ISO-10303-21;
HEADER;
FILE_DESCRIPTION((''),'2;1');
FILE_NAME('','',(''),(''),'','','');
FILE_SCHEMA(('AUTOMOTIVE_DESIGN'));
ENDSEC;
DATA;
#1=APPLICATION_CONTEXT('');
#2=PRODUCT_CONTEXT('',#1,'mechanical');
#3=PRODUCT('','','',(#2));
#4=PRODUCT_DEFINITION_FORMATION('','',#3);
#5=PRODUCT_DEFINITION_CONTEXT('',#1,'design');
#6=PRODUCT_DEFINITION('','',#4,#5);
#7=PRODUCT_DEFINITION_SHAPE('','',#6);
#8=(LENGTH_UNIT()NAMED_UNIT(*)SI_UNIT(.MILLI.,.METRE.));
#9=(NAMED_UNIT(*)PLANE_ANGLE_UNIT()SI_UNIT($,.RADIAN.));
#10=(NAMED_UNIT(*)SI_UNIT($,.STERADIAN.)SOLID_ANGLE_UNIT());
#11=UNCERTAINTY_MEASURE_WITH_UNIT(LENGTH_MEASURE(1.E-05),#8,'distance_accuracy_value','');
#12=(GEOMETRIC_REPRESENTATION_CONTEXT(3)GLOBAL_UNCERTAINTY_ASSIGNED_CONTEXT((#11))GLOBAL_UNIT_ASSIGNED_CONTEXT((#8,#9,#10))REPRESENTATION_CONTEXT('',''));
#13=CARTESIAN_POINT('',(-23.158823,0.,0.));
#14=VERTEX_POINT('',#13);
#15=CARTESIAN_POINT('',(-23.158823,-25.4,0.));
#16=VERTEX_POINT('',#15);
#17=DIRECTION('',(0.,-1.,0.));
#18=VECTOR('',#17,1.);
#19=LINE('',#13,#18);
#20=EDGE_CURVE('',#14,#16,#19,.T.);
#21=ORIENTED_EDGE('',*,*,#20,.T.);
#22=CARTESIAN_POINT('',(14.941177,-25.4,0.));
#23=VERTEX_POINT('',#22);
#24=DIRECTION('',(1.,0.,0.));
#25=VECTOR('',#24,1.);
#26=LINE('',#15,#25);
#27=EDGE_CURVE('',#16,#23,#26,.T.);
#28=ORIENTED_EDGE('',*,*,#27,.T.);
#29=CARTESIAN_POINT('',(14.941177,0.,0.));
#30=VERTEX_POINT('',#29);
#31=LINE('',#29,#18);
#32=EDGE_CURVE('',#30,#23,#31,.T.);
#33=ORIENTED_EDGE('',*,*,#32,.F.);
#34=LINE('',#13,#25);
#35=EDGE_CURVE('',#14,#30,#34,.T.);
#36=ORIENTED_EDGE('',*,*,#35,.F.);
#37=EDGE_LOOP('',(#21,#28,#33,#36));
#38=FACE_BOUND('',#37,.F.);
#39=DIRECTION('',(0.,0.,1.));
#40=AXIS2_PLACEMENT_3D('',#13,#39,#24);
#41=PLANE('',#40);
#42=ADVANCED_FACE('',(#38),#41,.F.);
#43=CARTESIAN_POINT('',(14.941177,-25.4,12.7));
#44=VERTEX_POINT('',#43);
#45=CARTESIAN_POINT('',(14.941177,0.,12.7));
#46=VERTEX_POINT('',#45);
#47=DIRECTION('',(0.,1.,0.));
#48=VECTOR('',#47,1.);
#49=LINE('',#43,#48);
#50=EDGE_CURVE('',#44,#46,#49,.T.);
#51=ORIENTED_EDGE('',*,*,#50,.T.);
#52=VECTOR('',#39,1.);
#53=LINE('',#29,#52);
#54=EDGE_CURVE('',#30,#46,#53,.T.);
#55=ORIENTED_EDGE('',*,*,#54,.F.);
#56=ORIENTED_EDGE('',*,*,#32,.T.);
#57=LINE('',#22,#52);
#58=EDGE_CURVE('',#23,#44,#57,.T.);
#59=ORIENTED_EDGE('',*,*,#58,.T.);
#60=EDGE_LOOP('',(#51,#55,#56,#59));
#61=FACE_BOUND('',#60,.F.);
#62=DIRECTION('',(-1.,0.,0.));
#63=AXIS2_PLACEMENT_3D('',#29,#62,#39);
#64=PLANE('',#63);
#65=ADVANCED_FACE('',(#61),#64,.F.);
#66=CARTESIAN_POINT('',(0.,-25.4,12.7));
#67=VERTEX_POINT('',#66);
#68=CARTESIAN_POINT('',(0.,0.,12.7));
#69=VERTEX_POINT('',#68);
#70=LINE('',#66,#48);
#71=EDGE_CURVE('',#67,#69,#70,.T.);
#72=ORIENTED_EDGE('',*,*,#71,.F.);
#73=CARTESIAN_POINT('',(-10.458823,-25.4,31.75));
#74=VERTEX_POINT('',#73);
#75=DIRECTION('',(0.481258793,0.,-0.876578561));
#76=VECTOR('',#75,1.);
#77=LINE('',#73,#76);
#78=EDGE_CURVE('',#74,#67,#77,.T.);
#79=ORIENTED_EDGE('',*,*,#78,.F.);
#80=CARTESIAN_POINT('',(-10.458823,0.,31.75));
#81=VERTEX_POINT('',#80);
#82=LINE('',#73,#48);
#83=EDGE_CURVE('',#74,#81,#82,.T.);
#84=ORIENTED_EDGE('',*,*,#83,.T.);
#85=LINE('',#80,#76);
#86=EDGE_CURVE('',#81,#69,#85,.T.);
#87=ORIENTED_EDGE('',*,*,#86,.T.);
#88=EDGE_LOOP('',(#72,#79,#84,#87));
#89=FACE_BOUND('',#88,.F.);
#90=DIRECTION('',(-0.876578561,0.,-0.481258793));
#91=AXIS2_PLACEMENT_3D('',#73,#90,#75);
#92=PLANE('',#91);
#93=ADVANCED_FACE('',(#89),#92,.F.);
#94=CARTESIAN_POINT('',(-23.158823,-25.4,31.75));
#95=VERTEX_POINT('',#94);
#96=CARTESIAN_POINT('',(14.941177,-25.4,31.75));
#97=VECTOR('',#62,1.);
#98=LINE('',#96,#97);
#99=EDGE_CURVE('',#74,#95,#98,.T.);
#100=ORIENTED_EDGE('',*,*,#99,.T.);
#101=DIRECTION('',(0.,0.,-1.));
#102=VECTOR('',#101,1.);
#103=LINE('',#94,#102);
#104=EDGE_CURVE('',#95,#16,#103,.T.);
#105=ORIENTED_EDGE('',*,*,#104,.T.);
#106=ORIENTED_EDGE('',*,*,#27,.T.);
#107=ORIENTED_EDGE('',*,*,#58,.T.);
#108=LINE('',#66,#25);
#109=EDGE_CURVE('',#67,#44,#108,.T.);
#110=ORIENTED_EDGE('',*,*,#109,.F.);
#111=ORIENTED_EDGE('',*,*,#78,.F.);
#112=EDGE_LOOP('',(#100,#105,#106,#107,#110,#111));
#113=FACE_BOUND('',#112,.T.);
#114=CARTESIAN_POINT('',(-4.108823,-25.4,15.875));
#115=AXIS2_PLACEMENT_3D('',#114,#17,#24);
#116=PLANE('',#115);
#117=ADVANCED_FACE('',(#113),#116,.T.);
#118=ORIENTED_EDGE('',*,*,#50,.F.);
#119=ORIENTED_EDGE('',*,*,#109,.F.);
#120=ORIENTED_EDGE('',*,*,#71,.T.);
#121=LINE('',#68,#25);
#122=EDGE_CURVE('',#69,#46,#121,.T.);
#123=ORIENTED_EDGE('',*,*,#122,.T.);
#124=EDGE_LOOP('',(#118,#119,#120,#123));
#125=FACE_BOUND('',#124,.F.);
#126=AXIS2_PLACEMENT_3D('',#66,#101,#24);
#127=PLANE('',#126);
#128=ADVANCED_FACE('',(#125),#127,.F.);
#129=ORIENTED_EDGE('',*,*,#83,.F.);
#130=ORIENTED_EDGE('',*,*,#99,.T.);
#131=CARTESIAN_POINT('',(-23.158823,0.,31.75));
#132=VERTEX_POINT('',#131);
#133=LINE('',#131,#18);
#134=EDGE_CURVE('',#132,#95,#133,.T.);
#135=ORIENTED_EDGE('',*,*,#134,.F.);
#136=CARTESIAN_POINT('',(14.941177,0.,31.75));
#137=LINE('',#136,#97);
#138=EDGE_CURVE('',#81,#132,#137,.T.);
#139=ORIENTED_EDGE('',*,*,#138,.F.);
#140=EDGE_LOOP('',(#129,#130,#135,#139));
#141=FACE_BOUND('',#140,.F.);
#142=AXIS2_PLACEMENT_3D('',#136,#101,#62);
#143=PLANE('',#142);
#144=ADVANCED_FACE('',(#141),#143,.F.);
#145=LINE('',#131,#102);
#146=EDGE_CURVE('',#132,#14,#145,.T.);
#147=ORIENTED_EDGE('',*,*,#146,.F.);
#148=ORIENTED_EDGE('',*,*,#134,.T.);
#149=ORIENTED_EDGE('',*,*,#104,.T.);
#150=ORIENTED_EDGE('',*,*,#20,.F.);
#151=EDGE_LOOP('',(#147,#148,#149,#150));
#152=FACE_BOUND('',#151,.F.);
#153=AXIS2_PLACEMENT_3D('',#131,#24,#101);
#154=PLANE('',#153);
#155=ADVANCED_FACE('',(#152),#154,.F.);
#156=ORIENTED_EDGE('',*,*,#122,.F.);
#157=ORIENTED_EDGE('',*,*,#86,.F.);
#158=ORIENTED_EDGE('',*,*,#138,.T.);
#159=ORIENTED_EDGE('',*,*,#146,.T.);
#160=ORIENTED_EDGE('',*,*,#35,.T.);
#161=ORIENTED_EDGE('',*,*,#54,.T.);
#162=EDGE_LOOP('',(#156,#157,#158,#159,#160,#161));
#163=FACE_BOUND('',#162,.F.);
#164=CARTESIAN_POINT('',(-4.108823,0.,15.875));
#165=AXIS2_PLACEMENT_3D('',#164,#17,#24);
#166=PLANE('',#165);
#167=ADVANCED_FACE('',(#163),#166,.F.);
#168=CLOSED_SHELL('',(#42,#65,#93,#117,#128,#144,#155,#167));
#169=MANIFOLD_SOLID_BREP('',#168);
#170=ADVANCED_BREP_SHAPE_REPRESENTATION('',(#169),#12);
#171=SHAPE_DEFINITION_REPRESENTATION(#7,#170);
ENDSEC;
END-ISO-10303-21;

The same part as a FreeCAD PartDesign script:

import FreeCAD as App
import Part
import Sketcher
from FreeCAD import Vector
Q = App.Units.Quantity


def add_polygon(sketch, points):
    """Adds a closed chain of lines whose ends are joined by coincident constraints."""
    first, n = sketch.GeometryCount, len(points)
    for a, b in zip(points, points[1:] + points[:1]):
        sketch.addGeometry(Part.LineSegment(App.Vector(*a, 0), App.Vector(*b, 0)), False)
    for i in range(n):
        sketch.addConstraint(Sketcher.Constraint("Coincident", first + i, 2, first + (i + 1) % n, 1))

doc = App.newDocument("Part")
body = doc.addObject("PartDesign::Body", "Body")

sketch1 = body.newObject("Sketcher::SketchObject", "Sketch")
sketch1.AttachmentSupport = (doc.getObject("XZ_Plane"), [""])
sketch1.MapMode = "FlatFace"
add_polygon(sketch1, [(-23.158823, 0), (14.941177, 0), (14.941177, 31.75), (-23.158823, 31.75)])
sketch1.addConstraint([
    Sketcher.Constraint("Horizontal", 0),
    Sketcher.Constraint("Vertical", 1),
    Sketcher.Constraint("Horizontal", 2),
    Sketcher.Constraint("Vertical", 3),
    Sketcher.Constraint("PointOnObject", 0, 2, -1),
    Sketcher.Constraint("DistanceX", 0, 1, 0, 2, Q("1.5 in")),
    Sketcher.Constraint("DistanceY", 1, 1, 1, 2, Q("1.25 in")),
    Sketcher.Constraint("DistanceX", -1, 1, 0, 2, 14.941177),
])
pad1 = body.newObject("PartDesign::Pad", "Pad")
pad1.Profile = sketch1
pad1.Length = Q("1 in")

sketch2 = body.newObject("Sketcher::SketchObject", "Sketch001")
sketch2.AttachmentSupport = (doc.getObject("XZ_Plane"), [""])
sketch2.MapMode = "FlatFace"
sketch2.AttachmentOffset = App.Placement(Vector(0, 0, 1 * 25.4), App.Rotation())
add_polygon(sketch2, [(14.941177, 31.75), (-10.458823, 31.75), (0, 12.7), (14.941177, 12.7)])
sketch2.addConstraint([
    Sketcher.Constraint("Horizontal", 0),
    Sketcher.Constraint("Horizontal", 2),
    Sketcher.Constraint("Vertical", 3),
    Sketcher.Constraint("PointOnObject", 1, 2, -2),
    Sketcher.Constraint("DistanceX", 0, 2, 0, 1, Q("1 in")),
    Sketcher.Constraint("DistanceY", 3, 1, 3, 2, Q("0.75 in")),
    Sketcher.Constraint("DistanceY", -1, 1, 1, 2, Q("0.5 in")),
    Sketcher.Constraint("DistanceX", 2, 1, 2, 2, 14.941177),
])
pocket1 = body.newObject("PartDesign::Pocket", "Pocket")
pocket1.Profile = sketch2
pocket1.Length = Q("1 in")

doc.recompute()
